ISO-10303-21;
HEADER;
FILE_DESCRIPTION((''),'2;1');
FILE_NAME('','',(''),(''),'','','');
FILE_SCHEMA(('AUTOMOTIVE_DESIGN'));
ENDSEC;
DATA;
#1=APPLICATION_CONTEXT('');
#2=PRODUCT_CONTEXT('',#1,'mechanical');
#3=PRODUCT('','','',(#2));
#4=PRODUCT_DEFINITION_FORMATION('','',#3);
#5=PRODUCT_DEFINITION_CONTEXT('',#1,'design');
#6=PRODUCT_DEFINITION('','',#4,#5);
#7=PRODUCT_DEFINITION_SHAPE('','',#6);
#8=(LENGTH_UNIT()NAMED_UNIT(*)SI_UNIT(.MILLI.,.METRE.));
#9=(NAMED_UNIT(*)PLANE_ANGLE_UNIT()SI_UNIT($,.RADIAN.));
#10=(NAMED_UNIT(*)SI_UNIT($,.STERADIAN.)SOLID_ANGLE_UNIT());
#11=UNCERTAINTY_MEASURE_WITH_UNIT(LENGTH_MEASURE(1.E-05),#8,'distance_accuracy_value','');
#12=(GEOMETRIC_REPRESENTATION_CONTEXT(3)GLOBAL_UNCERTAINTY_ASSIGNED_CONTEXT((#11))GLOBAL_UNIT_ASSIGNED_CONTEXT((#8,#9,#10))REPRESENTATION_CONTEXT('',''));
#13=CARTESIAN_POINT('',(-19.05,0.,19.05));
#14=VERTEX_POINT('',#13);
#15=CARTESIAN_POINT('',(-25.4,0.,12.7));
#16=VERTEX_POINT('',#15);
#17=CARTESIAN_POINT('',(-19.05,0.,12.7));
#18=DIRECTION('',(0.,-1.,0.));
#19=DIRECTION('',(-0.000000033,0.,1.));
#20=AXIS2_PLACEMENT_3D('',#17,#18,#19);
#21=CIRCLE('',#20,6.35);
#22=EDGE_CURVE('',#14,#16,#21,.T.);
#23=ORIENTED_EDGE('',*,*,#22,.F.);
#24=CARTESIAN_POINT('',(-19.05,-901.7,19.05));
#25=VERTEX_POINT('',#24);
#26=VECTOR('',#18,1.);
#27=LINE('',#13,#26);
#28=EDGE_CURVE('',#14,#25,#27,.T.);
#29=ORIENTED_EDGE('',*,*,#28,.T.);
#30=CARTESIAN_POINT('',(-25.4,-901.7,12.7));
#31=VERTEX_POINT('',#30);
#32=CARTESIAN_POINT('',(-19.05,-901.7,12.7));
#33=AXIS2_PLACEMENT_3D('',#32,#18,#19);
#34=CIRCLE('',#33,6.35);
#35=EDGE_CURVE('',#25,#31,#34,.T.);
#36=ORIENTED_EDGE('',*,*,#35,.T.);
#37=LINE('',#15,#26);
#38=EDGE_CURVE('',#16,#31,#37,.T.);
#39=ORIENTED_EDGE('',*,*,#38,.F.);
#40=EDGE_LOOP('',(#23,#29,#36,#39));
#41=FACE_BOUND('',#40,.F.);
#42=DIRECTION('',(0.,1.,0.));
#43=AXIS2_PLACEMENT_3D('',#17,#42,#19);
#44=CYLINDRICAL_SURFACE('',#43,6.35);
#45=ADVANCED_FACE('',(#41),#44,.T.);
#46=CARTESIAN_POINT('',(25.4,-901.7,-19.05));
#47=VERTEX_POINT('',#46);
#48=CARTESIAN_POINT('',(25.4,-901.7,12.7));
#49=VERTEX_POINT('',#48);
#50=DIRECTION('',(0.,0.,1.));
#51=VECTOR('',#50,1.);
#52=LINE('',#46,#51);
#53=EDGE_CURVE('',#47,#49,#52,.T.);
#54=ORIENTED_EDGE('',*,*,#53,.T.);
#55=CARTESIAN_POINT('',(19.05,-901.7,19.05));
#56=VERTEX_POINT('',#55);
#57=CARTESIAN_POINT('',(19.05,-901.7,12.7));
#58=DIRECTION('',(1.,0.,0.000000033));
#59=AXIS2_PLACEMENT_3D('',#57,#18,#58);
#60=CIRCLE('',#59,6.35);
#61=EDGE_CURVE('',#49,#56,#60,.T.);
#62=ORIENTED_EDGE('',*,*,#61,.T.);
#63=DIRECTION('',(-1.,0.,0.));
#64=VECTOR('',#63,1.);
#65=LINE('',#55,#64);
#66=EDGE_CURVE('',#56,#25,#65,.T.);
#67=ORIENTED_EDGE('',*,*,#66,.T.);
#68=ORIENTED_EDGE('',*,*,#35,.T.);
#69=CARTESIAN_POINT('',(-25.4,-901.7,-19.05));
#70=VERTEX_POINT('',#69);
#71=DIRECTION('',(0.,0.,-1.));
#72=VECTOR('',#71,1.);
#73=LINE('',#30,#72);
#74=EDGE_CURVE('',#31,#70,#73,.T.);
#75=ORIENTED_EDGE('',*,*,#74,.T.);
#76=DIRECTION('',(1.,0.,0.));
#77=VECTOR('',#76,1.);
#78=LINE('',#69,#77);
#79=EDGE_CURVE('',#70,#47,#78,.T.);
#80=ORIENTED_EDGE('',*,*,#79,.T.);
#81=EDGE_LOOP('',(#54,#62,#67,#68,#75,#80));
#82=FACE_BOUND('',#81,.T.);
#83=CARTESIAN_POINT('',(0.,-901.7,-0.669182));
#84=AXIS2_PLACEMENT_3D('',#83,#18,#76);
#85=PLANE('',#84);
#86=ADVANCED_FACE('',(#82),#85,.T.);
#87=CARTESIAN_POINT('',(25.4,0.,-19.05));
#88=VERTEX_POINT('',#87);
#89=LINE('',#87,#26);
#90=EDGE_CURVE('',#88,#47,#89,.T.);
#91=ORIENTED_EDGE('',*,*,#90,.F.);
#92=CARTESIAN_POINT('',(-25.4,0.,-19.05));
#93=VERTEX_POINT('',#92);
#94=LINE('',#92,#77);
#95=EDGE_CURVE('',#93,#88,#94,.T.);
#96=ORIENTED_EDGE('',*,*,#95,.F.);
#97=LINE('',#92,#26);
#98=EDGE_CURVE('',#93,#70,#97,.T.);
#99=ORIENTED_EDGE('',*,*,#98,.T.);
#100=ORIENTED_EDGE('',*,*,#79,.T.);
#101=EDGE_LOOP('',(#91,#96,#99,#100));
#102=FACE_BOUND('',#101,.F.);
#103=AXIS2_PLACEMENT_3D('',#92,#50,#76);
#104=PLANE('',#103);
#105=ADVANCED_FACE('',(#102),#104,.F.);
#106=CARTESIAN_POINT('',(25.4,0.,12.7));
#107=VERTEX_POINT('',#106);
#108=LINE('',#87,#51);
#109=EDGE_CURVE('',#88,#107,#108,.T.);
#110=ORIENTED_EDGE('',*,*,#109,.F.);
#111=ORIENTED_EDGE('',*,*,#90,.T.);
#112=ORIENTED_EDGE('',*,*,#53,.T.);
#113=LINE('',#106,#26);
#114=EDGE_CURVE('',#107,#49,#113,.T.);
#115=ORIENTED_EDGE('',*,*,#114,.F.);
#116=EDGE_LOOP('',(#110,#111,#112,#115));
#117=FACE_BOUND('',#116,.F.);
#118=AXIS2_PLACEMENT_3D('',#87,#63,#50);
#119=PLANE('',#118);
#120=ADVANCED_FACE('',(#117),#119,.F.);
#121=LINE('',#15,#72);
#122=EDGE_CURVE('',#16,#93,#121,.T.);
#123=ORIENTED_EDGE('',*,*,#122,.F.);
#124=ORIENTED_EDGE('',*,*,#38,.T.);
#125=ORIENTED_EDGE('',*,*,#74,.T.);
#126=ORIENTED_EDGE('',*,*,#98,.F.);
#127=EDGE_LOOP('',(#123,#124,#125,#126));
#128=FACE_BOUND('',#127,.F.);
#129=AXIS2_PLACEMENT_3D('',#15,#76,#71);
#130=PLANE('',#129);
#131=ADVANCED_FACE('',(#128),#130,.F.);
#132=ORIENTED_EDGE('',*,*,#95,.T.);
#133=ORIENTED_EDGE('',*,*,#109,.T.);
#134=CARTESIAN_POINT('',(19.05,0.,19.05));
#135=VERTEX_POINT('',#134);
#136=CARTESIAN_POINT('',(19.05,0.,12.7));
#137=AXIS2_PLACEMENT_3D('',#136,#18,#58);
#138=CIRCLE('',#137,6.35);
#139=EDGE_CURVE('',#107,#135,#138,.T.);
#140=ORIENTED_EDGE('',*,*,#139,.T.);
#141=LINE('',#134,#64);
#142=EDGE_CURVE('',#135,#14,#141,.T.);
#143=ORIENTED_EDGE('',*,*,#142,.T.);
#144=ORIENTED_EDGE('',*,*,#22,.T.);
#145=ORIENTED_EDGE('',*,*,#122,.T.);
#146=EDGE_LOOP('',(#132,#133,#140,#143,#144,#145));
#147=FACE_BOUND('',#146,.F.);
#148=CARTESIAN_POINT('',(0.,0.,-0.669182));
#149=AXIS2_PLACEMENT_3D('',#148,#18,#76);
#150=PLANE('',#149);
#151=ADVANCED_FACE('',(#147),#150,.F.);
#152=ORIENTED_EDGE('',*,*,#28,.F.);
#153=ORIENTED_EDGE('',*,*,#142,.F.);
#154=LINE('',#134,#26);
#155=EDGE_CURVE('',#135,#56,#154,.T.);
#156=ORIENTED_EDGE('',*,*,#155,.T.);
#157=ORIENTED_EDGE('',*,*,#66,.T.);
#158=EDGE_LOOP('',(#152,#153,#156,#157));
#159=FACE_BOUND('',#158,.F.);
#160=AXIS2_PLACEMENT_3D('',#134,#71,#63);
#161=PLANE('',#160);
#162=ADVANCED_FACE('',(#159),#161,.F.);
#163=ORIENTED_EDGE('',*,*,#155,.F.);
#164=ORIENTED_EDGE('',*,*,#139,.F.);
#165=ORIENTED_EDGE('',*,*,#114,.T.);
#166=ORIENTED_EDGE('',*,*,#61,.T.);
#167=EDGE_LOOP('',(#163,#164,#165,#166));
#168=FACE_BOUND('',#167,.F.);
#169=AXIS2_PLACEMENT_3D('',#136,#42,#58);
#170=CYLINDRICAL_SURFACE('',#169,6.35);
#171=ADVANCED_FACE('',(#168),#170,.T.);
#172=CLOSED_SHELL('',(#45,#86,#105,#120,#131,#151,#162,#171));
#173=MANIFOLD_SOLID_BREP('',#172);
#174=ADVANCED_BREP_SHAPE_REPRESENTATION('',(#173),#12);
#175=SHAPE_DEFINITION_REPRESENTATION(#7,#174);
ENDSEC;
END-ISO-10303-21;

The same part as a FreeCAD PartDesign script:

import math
import FreeCAD as App
import Part
import Sketcher

V = App.Vector
Q = App.Units.Quantity

doc = App.newDocument("Part")
params = doc.addObject("Spreadsheet::Sheet", "Params")
for row, (alias, value) in enumerate([
    ("sketch1_width", "2 in"),
    ("sketch1_radius", "0.25 in"),
    ("sketch1_height", "1.25 in"),
    ("pad1_length", "35.5 in"),
], start=1):
    params.set(f"A{row}", alias)
    params.set(f"B{row}", "=" + value)
    params.setAlias(f"B{row}", alias)

body = doc.addObject("PartDesign::Body", "Body")

# Sketch on XZ plane
sketch1 = body.newObject("Sketcher::SketchObject", "Sketch")
sketch1.AttachmentSupport = (doc.getObject("XZ_Plane"), [""])
sketch1.MapMode = "FlatFace"
sketch1.addGeometry([
    Part.LineSegment(V(-25, 13, 0), V(-25, -19, 0)),  # 0
    Part.LineSegment(V(-25, -19, 0), V(25, -19, 0)),  # 1
    Part.LineSegment(V(25, -19, 0), V(25, 13, 0)),  # 2
    Part.ArcOfCircle(Part.Circle(V(19, 13, 0), V(0, 0, 1), 6), math.radians(0), math.radians(90)),  # 3
    Part.LineSegment(V(19, 19, 0), V(-19, 19, 0)),  # 4
    Part.ArcOfCircle(Part.Circle(V(-19, 13, 0), V(0, 0, 1), 6), math.radians(90), math.radians(180)),  # 5
], False)
sketch1.addConstraint([
    Sketcher.Constraint("Coincident", 0, 2, 1, 1),
    Sketcher.Constraint("Coincident", 1, 2, 2, 1),
    Sketcher.Constraint("Tangent", 2, 2, 3, 1),
    Sketcher.Constraint("Tangent", 3, 2, 4, 1),
    Sketcher.Constraint("Tangent", 4, 2, 5, 1),
    Sketcher.Constraint("Tangent", 5, 2, 0, 1),
    Sketcher.Constraint("Vertical", 0),
    Sketcher.Constraint("Horizontal", 1),
    Sketcher.Constraint("Vertical", 2),
    Sketcher.Constraint("Horizontal", 4),
    Sketcher.Constraint("Equal", 3, 5),
    Sketcher.Constraint("DistanceX", 1, 1, 1, 2, Q("2 in")),
    Sketcher.Constraint("Radius", 3, Q("0.25 in")),
    Sketcher.Constraint("DistanceX", 0, 2, -1, 1, Q("1 in")),
    Sketcher.Constraint("DistanceY", 0, 2, 0, 1, Q("1.25 in")),
    Sketcher.Constraint("DistanceY", -1, 1, 3, 3, Q("0.5 in")),
])
sketch1.setExpression("Constraints[11]", "Params.sketch1_width")
sketch1.setExpression("Constraints[12]", "Params.sketch1_radius")
sketch1.setExpression("Constraints[14]", "Params.sketch1_height")
pad1 = body.newObject("PartDesign::Pad", "Pad")
pad1.Profile = sketch1
pad1.setExpression("Length", "Params.pad1_length")

doc.recompute()
